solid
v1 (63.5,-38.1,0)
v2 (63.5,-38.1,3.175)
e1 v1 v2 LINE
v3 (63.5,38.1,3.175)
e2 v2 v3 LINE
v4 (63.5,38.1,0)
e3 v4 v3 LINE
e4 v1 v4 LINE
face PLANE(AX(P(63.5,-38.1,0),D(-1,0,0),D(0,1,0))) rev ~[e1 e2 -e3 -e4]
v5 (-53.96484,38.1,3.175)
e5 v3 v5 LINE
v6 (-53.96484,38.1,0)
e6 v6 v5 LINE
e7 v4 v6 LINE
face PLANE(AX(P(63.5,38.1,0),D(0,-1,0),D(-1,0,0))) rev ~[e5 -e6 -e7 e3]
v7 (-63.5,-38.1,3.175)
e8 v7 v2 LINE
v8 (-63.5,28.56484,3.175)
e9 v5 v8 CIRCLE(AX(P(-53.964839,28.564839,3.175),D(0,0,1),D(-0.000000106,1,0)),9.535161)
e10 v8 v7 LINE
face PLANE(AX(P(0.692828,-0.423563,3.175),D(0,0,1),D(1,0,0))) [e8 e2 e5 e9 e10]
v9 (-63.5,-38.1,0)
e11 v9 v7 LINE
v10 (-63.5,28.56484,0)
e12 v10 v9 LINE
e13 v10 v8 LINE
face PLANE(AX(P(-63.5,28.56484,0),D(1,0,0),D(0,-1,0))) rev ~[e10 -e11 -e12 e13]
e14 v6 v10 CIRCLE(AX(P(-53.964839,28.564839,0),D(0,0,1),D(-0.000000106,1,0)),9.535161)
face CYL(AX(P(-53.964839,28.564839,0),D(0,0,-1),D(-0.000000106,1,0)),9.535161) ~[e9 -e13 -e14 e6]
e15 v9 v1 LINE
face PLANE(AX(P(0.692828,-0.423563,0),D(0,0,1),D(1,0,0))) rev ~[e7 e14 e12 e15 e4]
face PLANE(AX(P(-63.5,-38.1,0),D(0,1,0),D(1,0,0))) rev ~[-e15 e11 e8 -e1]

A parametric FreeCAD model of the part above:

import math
import FreeCAD as App
import Part
import Sketcher

V = App.Vector
Q = App.Units.Quantity

doc = App.newDocument("Part")
params = doc.addObject("Spreadsheet::Sheet", "Params")
for row, (alias, value) in enumerate([
    ("sketch1_width", "5 in"),
    ("sketch1_height", "3 in"),
    ("pad1_length", "0.125 in"),
], start=1):
    params.set(f"A{row}", alias)
    params.set(f"B{row}", "=" + value)
    params.setAlias(f"B{row}", alias)

body = doc.addObject("PartDesign::Body", "Body")

# Sketch on XY plane
sketch1 = body.newObject("Sketcher::SketchObject", "Sketch")
sketch1.AttachmentSupport = (doc.getObject("XY_Plane"), [""])
sketch1.MapMode = "FlatFace"
sketch1.addGeometry([
    Part.LineSegment(V(63.5, 38.1, 0), V(-53.96484, 38.1, 0)),  # 0
    Part.ArcOfCircle(Part.Circle(V(-53.964839, 28.564839, 0), V(0, 0, 1), 9.535161), math.radians(90.000006), math.radians(179.999994)),  # 1
    Part.LineSegment(V(-63.5, 28.56484, 0), V(-63.5, -38.1, 0)),  # 2
    Part.LineSegment(V(-63.5, -38.1, 0), V(63.5, -38.1, 0)),  # 3
    Part.LineSegment(V(63.5, -38.1, 0), V(63.5, 38.1, 0)),  # 4
], False)
sketch1.addConstraint([
    Sketcher.Constraint("Tangent", 0, 2, 1, 1),
    Sketcher.Constraint("Tangent", 1, 2, 2, 1),
    Sketcher.Constraint("Coincident", 2, 2, 3, 1),
    Sketcher.Constraint("Coincident", 3, 2, 4, 1),
    Sketcher.Constraint("Coincident", 4, 2, 0, 1),
    Sketcher.Constraint("Horizontal", 0),
    Sketcher.Constraint("Vertical", 2),
    Sketcher.Constraint("Horizontal", 3),
    Sketcher.Constraint("Vertical", 4),
    Sketcher.Constraint("Symmetric", 2, 2, 4, 2, -1, 1),
    Sketcher.Constraint("DistanceX", 3, 1, 3, 2, Q("5 in")),
    Sketcher.Constraint("DistanceY", 4, 1, 4, 2, Q("3 in")),
    Sketcher.Constraint("Radius", 1, Q("0.3754 in")),
])
sketch1.setExpression("Constraints[10]", "Params.sketch1_width")
sketch1.setExpression("Constraints[11]", "Params.sketch1_height")
pad1 = body.newObject("PartDesign::Pad", "Pad")
pad1.Profile = sketch1
pad1.setExpression("Length", "Params.pad1_length")

doc.recompute()
